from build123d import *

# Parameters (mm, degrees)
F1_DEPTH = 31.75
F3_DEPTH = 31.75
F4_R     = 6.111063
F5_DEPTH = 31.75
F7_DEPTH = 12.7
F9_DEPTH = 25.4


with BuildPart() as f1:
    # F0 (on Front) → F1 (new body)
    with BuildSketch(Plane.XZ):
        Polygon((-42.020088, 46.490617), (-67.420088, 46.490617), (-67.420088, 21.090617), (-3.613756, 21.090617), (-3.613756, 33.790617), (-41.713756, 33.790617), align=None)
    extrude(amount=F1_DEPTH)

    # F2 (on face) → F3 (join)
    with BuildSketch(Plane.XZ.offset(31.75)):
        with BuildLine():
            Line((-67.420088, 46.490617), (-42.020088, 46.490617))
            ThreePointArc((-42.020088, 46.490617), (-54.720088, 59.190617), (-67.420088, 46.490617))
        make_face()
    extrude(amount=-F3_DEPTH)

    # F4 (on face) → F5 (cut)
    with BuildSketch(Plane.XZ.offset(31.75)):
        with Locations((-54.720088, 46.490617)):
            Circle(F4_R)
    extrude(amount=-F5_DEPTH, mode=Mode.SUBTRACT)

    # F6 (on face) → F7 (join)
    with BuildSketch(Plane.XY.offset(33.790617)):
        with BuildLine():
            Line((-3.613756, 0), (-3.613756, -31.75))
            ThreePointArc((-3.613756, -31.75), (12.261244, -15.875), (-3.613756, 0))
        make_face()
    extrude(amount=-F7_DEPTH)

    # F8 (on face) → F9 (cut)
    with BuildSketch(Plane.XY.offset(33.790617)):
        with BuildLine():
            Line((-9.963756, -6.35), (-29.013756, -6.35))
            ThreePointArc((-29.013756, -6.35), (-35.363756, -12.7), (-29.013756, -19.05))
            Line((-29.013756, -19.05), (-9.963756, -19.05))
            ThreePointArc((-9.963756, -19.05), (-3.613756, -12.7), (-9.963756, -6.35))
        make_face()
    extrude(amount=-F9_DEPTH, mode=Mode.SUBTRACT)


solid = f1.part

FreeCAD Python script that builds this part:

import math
import FreeCAD as App
import Part
import Sketcher
from FreeCAD import Vector
Q = App.Units.Quantity

doc = App.newDocument("Part")
body = doc.addObject("PartDesign::Body", "Body")

# Sketch on XZ plane
sketch1 = body.newObject("Sketcher::SketchObject", "Sketch")
sketch1.AttachmentSupport = (doc.getObject("XZ_Plane"), [""])
sketch1.MapMode = "FlatFace"
sketch1.addGeometry([
    Part.LineSegment(Vector(-42, 46, 0), Vector(-67, 46, 0)),  # 0
    Part.LineSegment(Vector(-67, 46, 0), Vector(-67, 21, 0)),  # 1
    Part.LineSegment(Vector(-67, 21, 0), Vector(-4, 21, 0)),  # 2
    Part.LineSegment(Vector(-4, 21, 0), Vector(-4, 34, 0)),  # 3
    Part.LineSegment(Vector(-4, 34, 0), Vector(-42, 34, 0)),  # 4
    Part.LineSegment(Vector(-42, 34, 0), Vector(-42, 46, 0)),  # 5
], False)
sketch1.addConstraint([
    Sketcher.Constraint("Coincident", 0, 2, 1, 1),
    Sketcher.Constraint("Coincident", 1, 2, 2, 1),
    Sketcher.Constraint("Coincident", 2, 2, 3, 1),
    Sketcher.Constraint("Coincident", 3, 2, 4, 1),
    Sketcher.Constraint("Coincident", 4, 2, 5, 1),
    Sketcher.Constraint("Coincident", 5, 2, 0, 1),
    Sketcher.Constraint("Horizontal", 0),
    Sketcher.Constraint("Vertical", 1),
    Sketcher.Constraint("Horizontal", 2),
    Sketcher.Constraint("Vertical", 3),
    Sketcher.Constraint("Horizontal", 4),
    Sketcher.Constraint("Equal", 0, 1),
    Sketcher.Constraint("DistanceX", 0, 2, 0, 1, Q("1 in")),
    Sketcher.Constraint("DistanceX", 4, 2, 4, 1, Q("1.5 in")),
    Sketcher.Constraint("DistanceY", 3, 1, 3, 2, Q("0.5 in")),
    Sketcher.Constraint("DistanceX", 2, 1, 2, 2, Q("63.806332 mm")),
    Sketcher.Constraint("DistanceX", 0, 2, -1, 1, Q("67.420088 mm")),
    Sketcher.Constraint("DistanceY", -1, 1, 0, 2, Q("46.490617 mm")),
])
pad1 = body.newObject("PartDesign::Pad", "Pad")
pad1.Profile = sketch1
pad1.Length = Q("1.25 in")

# Sketch on XZ plane
sketch2 = body.newObject("Sketcher::SketchObject", "Sketch001")
sketch2.AttachmentSupport = (doc.getObject("XZ_Plane"), [""])
sketch2.MapMode = "FlatFace"
sketch2.AttachmentOffset = App.Placement(Vector(0, 0, 1.25 * 25.4), App.Rotation())
sketch2.addGeometry([
    Part.LineSegment(Vector(-67, 46, 0), Vector(-42, 46, 0)),
    Part.ArcOfCircle(Part.Circle(Vector(-55, 46, 0), Vector(0, 0, 1), 13), math.radians(0), math.radians(180)),
], False)
sketch2.addConstraint([
    Sketcher.Constraint("Coincident", 0, 1, 1, 2),
    Sketcher.Constraint("Coincident", 1, 1, 0, 2),
    Sketcher.Constraint("Horizontal", 0),
    Sketcher.Constraint("Horizontal", 1, 3, 0, 1),
    Sketcher.Constraint("Radius", 1, Q("0.5 in")),
    Sketcher.Constraint("DistanceX", 0, 1, -1, 1, Q("67.420088 mm")),
    Sketcher.Constraint("DistanceY", -1, 1, 1, 3, Q("46.490617 mm")),
])
pad2 = body.newObject("PartDesign::Pad", "Pad001")
pad2.Profile = sketch2
pad2.Length = Q("1.25 in")
pad2.Reversed = True

# Sketch on XZ plane
sketch3 = body.newObject("Sketcher::SketchObject", "Sketch002")
sketch3.AttachmentSupport = (doc.getObject("XZ_Plane"), [""])
sketch3.MapMode = "FlatFace"
sketch3.AttachmentOffset = App.Placement(Vector(0, 0, 1.25 * 25.4), App.Rotation())
sketch3.addGeometry(Part.Circle(Vector(-55, 46, 0), Vector(0, 0, 1), 6), False)
sketch3.addConstraint([
    Sketcher.Constraint("Diameter", 0, Q("12.222126 mm")),
    Sketcher.Constraint("DistanceX", 0, 3, -1, 1, Q("54.720088 mm")),
    Sketcher.Constraint("DistanceY", -1, 1, 0, 3, Q("46.490617 mm")),
])
pocket1 = body.newObject("PartDesign::Pocket", "Pocket")
pocket1.Profile = sketch3
pocket1.Length = Q("1.25 in")

# Sketch on XY plane
sketch4 = body.newObject("Sketcher::SketchObject", "Sketch003")
sketch4.AttachmentSupport = (doc.getObject("XY_Plane"), [""])
sketch4.MapMode = "FlatFace"
sketch4.AttachmentOffset = App.Placement(Vector(0, 0, 33.790617), App.Rotation())
sketch4.addGeometry([
    Part.LineSegment(Vector(-4, 0, 0), Vector(-4, -32, 0)),
    Part.ArcOfCircle(Part.Circle(Vector(-4, -16, 0), Vector(0, 0, 1), 16), math.radians(-90), math.radians(90)),
], False)
sketch4.addConstraint([
    Sketcher.Constraint("Coincident", 0, 1, 1, 2),
    Sketcher.Constraint("Coincident", 1, 1, 0, 2),
    Sketcher.Constraint("Vertical", 0),
    Sketcher.Constraint("PointOnObject", 0, 1, -1),
    Sketcher.Constraint("Vertical", 1, 3, 0, 1),
    Sketcher.Constraint("Radius", 1, Q("0.625 in")),
    Sketcher.Constraint("DistanceX", 1, 3, -1, 1, Q("3.613756 mm")),
])
pad3 = body.newObject("PartDesign::Pad", "Pad002")
pad3.Profile = sketch4
pad3.Length = Q("0.5 in")
pad3.Reversed = True

# Sketch on XY plane
sketch5 = body.newObject("Sketcher::SketchObject", "Sketch004")
sketch5.AttachmentSupport = (doc.getObject("XY_Plane"), [""])
sketch5.MapMode = "FlatFace"
sketch5.AttachmentOffset = App.Placement(Vector(0, 0, 33.790617), App.Rotation())
sketch5.addGeometry([
    Part.LineSegment(Vector(-10, -6, 0), Vector(-29, -6, 0)),
    Part.ArcOfCircle(Part.Circle(Vector(-29, -13, 0), Vector(0, 0, 1), 6), math.radians(90), math.radians(270)),
    Part.LineSegment(Vector(-29, -19, 0), Vector(-10, -19, 0)),
    Part.ArcOfCircle(Part.Circle(Vector(-10, -13, 0), Vector(0, 0, 1), 6), math.radians(-90), math.radians(90)),
], False)
sketch5.addConstraint([
    Sketcher.Constraint("Tangent", 0, 2, 1, 1),
    Sketcher.Constraint("Tangent", 1, 2, 2, 1),
    Sketcher.Constraint("Tangent", 2, 2, 3, 1),
    Sketcher.Constraint("Tangent", 3, 2, 0, 1),
    Sketcher.Constraint("Horizontal", 0),
    Sketcher.Constraint("Horizontal", 2),
    Sketcher.Constraint("Radius", 1, Q("0.25 in")),
    Sketcher.Constraint("DistanceX", 0, 2, 0, 1, Q("0.75 in")),
    Sketcher.Constraint("DistanceY", 1, 3, -1, 1, Q("0.5 in")),
    Sketcher.Constraint("DistanceX", 1, 3, -1, 1, Q("29.013756 mm")),
])
pocket2 = body.newObject("PartDesign::Pocket", "Pocket001")
pocket2.Profile = sketch5
pocket2.Length = Q("1 in")

doc.recompute()
